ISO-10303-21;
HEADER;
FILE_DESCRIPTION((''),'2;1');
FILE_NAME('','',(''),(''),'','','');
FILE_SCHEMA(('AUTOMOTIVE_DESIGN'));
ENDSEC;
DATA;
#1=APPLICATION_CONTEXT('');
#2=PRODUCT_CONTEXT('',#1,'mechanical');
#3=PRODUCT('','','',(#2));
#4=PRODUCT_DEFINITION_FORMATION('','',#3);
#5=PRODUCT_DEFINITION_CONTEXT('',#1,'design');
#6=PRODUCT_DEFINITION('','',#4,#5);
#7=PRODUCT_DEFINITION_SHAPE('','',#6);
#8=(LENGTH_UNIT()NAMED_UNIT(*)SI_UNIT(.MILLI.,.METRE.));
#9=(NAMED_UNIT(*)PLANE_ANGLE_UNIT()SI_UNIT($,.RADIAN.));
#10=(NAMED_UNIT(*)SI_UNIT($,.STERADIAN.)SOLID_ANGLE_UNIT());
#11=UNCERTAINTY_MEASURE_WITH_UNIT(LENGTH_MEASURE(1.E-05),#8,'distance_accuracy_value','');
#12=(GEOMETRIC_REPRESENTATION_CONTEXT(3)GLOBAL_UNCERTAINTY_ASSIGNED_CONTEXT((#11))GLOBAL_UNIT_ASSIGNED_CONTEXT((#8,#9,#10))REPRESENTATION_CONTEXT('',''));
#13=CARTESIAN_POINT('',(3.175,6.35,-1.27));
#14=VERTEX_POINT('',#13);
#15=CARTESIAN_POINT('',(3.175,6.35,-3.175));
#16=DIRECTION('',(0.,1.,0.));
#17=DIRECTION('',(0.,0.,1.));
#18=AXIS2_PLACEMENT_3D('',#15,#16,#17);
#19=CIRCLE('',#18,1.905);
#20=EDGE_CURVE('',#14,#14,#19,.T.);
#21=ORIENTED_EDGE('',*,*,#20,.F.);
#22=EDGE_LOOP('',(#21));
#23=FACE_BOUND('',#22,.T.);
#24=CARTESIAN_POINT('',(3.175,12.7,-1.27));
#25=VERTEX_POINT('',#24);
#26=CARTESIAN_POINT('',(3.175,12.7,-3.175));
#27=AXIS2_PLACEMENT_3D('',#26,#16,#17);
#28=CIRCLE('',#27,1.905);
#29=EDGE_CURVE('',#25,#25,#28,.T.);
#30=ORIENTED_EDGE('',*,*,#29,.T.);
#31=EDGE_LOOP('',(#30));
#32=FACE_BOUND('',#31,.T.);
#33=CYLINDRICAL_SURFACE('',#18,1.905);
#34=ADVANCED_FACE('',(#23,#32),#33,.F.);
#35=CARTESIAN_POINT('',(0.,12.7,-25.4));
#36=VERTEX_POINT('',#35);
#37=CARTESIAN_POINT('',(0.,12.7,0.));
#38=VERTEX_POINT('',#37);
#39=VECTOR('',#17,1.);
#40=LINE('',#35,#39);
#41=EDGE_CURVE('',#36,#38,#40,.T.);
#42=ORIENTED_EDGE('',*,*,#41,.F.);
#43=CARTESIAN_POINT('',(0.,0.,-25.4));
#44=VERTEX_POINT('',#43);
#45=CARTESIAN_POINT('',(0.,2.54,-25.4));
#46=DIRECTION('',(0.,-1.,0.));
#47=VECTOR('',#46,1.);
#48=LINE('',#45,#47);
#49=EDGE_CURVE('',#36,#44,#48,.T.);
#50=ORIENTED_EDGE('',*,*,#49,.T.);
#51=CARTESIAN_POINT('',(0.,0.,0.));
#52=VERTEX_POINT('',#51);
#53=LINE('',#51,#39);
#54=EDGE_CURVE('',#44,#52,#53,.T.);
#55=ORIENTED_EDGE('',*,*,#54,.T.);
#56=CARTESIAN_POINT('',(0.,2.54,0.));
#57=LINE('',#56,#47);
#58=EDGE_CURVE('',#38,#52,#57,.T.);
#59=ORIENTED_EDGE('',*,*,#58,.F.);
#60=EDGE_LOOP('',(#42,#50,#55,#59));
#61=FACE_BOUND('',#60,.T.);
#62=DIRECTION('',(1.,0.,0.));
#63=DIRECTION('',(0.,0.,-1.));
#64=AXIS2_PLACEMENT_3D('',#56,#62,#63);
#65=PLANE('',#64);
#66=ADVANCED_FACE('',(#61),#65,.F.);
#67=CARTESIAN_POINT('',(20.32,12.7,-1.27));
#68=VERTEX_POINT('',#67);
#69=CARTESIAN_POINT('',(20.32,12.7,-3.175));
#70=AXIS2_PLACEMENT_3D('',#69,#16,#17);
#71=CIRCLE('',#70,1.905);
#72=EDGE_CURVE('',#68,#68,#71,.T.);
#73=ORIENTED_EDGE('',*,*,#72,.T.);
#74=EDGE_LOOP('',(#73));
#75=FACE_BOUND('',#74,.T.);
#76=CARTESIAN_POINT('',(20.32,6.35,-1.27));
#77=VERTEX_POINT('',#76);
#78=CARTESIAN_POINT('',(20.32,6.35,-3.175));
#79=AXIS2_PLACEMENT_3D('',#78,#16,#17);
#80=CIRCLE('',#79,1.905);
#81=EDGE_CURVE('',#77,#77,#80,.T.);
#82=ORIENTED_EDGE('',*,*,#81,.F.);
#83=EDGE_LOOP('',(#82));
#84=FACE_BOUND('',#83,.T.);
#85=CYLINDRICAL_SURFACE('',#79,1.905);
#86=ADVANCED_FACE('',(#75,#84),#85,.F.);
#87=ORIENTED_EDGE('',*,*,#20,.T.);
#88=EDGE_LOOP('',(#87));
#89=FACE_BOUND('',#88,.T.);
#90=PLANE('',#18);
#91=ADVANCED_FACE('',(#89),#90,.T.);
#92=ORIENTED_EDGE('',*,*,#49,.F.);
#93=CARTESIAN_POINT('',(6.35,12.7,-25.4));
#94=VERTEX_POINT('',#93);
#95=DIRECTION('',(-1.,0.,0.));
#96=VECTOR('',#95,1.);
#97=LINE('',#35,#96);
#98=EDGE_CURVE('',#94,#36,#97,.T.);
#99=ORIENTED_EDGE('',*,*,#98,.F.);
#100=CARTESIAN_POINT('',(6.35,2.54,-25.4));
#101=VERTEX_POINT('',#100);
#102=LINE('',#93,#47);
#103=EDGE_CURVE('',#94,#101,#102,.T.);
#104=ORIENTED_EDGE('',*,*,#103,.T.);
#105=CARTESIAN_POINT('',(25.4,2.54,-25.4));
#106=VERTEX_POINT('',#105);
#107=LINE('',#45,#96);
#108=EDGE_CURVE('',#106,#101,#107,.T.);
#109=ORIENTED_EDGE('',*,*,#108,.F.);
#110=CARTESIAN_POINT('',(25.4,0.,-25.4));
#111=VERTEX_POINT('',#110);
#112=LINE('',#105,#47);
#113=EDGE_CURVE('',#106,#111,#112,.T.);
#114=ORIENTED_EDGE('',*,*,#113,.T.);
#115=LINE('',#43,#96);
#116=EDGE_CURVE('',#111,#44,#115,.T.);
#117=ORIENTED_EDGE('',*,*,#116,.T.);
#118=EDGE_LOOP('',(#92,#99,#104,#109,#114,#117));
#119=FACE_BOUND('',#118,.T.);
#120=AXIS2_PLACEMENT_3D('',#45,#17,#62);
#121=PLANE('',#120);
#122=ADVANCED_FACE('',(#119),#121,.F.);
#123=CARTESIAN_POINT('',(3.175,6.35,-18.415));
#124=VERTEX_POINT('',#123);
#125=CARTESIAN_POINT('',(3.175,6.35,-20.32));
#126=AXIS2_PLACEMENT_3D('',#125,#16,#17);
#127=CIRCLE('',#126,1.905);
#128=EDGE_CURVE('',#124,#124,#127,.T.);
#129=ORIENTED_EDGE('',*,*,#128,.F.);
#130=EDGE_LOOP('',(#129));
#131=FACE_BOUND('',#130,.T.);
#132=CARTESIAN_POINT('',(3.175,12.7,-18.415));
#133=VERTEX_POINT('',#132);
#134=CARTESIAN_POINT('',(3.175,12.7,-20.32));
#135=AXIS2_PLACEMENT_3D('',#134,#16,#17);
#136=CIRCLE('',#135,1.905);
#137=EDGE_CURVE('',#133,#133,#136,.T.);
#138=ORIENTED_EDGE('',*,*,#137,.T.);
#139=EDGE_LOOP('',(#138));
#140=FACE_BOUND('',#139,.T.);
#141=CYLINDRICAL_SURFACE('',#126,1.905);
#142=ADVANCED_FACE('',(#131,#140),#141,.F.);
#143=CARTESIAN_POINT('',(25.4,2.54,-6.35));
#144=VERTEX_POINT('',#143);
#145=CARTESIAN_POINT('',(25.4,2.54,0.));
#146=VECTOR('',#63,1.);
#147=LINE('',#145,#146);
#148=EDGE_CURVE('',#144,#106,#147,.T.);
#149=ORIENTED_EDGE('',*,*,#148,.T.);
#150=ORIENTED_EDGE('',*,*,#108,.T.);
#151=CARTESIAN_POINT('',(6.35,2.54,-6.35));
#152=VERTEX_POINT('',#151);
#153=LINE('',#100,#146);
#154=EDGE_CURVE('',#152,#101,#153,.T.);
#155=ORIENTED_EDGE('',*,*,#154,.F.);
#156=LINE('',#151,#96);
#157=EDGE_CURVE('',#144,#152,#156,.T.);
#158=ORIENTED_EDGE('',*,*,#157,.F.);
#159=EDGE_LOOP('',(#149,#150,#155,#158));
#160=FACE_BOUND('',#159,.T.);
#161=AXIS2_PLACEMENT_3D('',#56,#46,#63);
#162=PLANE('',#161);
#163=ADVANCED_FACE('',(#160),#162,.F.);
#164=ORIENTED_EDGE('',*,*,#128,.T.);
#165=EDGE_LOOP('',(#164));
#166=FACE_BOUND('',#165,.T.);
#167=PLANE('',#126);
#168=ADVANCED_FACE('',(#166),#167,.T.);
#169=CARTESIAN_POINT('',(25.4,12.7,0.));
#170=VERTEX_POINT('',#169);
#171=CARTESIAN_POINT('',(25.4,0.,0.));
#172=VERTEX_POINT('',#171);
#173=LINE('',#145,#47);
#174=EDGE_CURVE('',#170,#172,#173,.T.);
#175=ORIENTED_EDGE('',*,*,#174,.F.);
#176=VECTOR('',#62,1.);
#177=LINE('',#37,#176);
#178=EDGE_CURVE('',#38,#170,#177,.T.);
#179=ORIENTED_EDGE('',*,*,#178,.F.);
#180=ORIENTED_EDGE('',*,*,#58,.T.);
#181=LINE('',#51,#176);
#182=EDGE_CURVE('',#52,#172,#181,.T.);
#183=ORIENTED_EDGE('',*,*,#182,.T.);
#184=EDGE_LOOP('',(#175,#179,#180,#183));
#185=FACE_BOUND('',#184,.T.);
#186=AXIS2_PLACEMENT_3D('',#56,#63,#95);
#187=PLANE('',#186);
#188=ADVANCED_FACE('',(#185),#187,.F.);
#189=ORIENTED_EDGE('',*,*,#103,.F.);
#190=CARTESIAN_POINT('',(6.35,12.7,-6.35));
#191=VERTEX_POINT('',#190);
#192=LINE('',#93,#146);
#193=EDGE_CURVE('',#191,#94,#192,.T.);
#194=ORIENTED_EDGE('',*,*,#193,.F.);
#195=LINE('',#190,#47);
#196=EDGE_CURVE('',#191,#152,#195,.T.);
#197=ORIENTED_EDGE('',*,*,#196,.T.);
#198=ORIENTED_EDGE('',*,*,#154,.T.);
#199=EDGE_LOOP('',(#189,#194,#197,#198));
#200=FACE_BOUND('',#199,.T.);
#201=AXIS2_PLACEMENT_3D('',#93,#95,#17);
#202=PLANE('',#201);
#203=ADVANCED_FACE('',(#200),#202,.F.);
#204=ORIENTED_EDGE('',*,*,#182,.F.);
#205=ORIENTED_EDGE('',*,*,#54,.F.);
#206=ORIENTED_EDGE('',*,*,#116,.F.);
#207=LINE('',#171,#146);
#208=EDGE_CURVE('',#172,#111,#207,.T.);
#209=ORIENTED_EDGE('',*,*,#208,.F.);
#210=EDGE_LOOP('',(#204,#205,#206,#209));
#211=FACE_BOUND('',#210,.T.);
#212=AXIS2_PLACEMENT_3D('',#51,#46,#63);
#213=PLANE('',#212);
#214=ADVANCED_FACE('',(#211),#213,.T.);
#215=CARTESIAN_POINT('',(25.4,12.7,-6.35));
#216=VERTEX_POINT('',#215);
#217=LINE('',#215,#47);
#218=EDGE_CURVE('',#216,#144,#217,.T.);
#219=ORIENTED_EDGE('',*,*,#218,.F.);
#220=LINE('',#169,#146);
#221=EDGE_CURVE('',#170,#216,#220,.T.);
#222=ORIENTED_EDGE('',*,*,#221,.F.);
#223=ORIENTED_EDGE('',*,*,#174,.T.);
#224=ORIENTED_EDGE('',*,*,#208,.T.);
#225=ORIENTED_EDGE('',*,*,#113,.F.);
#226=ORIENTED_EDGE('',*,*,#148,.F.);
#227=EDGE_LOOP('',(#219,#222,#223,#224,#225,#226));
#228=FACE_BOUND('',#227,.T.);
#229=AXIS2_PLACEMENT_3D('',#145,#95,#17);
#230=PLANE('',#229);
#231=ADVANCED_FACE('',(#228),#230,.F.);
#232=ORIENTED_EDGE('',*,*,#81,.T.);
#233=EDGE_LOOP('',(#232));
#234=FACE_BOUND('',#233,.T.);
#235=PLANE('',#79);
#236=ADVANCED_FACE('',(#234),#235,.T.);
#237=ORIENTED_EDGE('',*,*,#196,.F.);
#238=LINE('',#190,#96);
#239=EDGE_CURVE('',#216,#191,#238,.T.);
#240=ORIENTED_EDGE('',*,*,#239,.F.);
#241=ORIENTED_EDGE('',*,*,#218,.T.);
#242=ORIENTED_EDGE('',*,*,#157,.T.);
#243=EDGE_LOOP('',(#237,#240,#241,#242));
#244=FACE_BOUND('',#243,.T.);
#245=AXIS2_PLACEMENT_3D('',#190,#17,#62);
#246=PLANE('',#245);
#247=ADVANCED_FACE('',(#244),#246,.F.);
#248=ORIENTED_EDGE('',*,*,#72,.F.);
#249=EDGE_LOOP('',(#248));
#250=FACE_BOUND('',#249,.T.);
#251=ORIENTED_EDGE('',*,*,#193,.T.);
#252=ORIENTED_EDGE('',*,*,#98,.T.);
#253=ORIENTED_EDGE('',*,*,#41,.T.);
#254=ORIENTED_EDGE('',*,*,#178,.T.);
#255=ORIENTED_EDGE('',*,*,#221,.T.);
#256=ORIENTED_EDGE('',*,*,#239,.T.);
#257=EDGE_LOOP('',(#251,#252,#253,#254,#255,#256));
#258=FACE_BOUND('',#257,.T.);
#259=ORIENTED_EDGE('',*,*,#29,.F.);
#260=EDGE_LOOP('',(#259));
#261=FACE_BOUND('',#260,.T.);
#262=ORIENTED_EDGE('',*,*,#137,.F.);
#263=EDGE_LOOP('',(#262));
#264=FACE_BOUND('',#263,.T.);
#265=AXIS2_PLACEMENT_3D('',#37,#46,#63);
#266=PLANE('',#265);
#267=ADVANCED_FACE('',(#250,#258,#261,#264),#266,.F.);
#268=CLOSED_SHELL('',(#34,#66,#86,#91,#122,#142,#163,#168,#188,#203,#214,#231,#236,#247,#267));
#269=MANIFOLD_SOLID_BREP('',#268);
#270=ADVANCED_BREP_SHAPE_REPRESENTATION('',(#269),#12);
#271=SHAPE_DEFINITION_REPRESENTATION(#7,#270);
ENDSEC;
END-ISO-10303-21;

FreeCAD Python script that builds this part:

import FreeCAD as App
import Part
import Sketcher

V = App.Vector
Q = App.Units.Quantity

doc = App.newDocument("Part")
body = doc.addObject("PartDesign::Body", "Body")

sketch1 = body.newObject("Sketcher::SketchObject", "Sketch")
sketch1.AttachmentSupport = (doc.getObject("XZ_Plane"), [""])
sketch1.MapMode = "FlatFace"
sketch1.addGeometry([
    Part.LineSegment(V(0, -25, 0), V(0, 0, 0)),
    Part.LineSegment(V(0, 0, 0), V(25, 0, 0)),
    Part.LineSegment(V(25, 0, 0), V(25, -25, 0)),
    Part.LineSegment(V(25, -25, 0), V(0, -25, 0)),
], False)
sketch1.addConstraint([
    Sketcher.Constraint("Coincident", 0, 2, 1, 1),
    Sketcher.Constraint("Coincident", 1, 2, 2, 1),
    Sketcher.Constraint("Coincident", 2, 2, 3, 1),
    Sketcher.Constraint("Coincident", 3, 2, 0, 1),
    Sketcher.Constraint("Vertical", 0),
    Sketcher.Constraint("Horizontal", 1),
    Sketcher.Constraint("Vertical", 2),
    Sketcher.Constraint("Horizontal", 3),
    Sketcher.Constraint("Coincident", 0, 2, -1, 1),
    Sketcher.Constraint("Equal", 3, 0),
    Sketcher.Constraint("DistanceX", 1, 1, 1, 2, Q("1 in")),
])
pad1 = body.newObject("PartDesign::Pad", "Pad")
pad1.Profile = sketch1
pad1.Length = Q("0.1 in")
pad1.Reversed = True

sketch2 = body.newObject("Sketcher::SketchObject", "Sketch001")
sketch2.AttachmentSupport = (doc.getObject("XZ_Plane"), [""])
sketch2.MapMode = "FlatFace"
sketch2.AttachmentOffset = App.Placement(V(0, 0, -0.1 * 25.4), App.Rotation())
sketch2.addGeometry([
    Part.LineSegment(V(0, -25, 0), V(0, 0, 0)),
    Part.LineSegment(V(0, 0, 0), V(25, 0, 0)),
    Part.LineSegment(V(25, 0, 0), V(25, -6, 0)),
    Part.LineSegment(V(25, -6, 0), V(6, -6, 0)),
    Part.LineSegment(V(6, -6, 0), V(6, -25, 0)),
    Part.LineSegment(V(6, -25, 0), V(0, -25, 0)),
], False)
sketch2.addConstraint([
    Sketcher.Constraint("Coincident", 0, 2, 1, 1),
    Sketcher.Constraint("Coincident", 1, 2, 2, 1),
    Sketcher.Constraint("Coincident", 2, 2, 3, 1),
    Sketcher.Constraint("Coincident", 3, 2, 4, 1),
    Sketcher.Constraint("Coincident", 4, 2, 5, 1),
    Sketcher.Constraint("Coincident", 5, 2, 0, 1),
    Sketcher.Constraint("Vertical", 0),
    Sketcher.Constraint("Horizontal", 1),
    Sketcher.Constraint("Vertical", 2),
    Sketcher.Constraint("Horizontal", 3),
    Sketcher.Constraint("Vertical", 4),
    Sketcher.Constraint("Horizontal", 5),
    Sketcher.Constraint("Coincident", 0, 2, -1, 1),
    Sketcher.Constraint("Equal", 1, 0),
    Sketcher.Constraint("Equal", 5, 2),
    Sketcher.Constraint("DistanceX", 1, 1, 1, 2, Q("1 in")),
    Sketcher.Constraint("DistanceX", 3, 2, 3, 1, Q("0.75 in")),
])
pad2 = body.newObject("PartDesign::Pad", "Pad001")
pad2.Profile = sketch2
pad2.Length = Q("0.4 in")
pad2.Reversed = True

sketch3 = body.newObject("Sketcher::SketchObject", "Sketch002")
sketch3.AttachmentSupport = (doc.getObject("XZ_Plane"), [""])
sketch3.MapMode = "FlatFace"
sketch3.AttachmentOffset = App.Placement(V(0, 0, -0.5 * 25.4), App.Rotation())
sketch3.addGeometry([
    Part.Circle(V(3.2, -20.3, 0), V(0, 0, 1), 1.9),
    Part.Circle(V(3.2, -3.2, 0), V(0, 0, 1), 1.9),
    Part.Circle(V(20.3, -3.2, 0), V(0, 0, 1), 1.9),
], False)
sketch3.addConstraint([
    Sketcher.Constraint("Equal", 0, 1),
    Sketcher.Constraint("Equal", 1, 2),
    Sketcher.Constraint("Horizontal", 1, 3, 2, 3),
    Sketcher.Constraint("Vertical", 0, 3, 1, 3),
    Sketcher.Constraint("Diameter", 0, Q("0.15 in")),
    Sketcher.Constraint("DistanceY", 0, 3, -1, 1, Q("0.8 in")),
    Sketcher.Constraint("DistanceX", -1, 1, 2, 3, Q("0.8 in")),
    Sketcher.Constraint("DistanceX", -1, 1, 0, 3, Q("0.125 in")),
    Sketcher.Constraint("DistanceY", 1, 3, -1, 1, Q("0.125 in")),
])
pocket1 = body.newObject("PartDesign::Pocket", "Pocket")
pocket1.Profile = sketch3
pocket1.Length = Q("0.25 in")
pocket1.Reversed = True

doc.recompute()
